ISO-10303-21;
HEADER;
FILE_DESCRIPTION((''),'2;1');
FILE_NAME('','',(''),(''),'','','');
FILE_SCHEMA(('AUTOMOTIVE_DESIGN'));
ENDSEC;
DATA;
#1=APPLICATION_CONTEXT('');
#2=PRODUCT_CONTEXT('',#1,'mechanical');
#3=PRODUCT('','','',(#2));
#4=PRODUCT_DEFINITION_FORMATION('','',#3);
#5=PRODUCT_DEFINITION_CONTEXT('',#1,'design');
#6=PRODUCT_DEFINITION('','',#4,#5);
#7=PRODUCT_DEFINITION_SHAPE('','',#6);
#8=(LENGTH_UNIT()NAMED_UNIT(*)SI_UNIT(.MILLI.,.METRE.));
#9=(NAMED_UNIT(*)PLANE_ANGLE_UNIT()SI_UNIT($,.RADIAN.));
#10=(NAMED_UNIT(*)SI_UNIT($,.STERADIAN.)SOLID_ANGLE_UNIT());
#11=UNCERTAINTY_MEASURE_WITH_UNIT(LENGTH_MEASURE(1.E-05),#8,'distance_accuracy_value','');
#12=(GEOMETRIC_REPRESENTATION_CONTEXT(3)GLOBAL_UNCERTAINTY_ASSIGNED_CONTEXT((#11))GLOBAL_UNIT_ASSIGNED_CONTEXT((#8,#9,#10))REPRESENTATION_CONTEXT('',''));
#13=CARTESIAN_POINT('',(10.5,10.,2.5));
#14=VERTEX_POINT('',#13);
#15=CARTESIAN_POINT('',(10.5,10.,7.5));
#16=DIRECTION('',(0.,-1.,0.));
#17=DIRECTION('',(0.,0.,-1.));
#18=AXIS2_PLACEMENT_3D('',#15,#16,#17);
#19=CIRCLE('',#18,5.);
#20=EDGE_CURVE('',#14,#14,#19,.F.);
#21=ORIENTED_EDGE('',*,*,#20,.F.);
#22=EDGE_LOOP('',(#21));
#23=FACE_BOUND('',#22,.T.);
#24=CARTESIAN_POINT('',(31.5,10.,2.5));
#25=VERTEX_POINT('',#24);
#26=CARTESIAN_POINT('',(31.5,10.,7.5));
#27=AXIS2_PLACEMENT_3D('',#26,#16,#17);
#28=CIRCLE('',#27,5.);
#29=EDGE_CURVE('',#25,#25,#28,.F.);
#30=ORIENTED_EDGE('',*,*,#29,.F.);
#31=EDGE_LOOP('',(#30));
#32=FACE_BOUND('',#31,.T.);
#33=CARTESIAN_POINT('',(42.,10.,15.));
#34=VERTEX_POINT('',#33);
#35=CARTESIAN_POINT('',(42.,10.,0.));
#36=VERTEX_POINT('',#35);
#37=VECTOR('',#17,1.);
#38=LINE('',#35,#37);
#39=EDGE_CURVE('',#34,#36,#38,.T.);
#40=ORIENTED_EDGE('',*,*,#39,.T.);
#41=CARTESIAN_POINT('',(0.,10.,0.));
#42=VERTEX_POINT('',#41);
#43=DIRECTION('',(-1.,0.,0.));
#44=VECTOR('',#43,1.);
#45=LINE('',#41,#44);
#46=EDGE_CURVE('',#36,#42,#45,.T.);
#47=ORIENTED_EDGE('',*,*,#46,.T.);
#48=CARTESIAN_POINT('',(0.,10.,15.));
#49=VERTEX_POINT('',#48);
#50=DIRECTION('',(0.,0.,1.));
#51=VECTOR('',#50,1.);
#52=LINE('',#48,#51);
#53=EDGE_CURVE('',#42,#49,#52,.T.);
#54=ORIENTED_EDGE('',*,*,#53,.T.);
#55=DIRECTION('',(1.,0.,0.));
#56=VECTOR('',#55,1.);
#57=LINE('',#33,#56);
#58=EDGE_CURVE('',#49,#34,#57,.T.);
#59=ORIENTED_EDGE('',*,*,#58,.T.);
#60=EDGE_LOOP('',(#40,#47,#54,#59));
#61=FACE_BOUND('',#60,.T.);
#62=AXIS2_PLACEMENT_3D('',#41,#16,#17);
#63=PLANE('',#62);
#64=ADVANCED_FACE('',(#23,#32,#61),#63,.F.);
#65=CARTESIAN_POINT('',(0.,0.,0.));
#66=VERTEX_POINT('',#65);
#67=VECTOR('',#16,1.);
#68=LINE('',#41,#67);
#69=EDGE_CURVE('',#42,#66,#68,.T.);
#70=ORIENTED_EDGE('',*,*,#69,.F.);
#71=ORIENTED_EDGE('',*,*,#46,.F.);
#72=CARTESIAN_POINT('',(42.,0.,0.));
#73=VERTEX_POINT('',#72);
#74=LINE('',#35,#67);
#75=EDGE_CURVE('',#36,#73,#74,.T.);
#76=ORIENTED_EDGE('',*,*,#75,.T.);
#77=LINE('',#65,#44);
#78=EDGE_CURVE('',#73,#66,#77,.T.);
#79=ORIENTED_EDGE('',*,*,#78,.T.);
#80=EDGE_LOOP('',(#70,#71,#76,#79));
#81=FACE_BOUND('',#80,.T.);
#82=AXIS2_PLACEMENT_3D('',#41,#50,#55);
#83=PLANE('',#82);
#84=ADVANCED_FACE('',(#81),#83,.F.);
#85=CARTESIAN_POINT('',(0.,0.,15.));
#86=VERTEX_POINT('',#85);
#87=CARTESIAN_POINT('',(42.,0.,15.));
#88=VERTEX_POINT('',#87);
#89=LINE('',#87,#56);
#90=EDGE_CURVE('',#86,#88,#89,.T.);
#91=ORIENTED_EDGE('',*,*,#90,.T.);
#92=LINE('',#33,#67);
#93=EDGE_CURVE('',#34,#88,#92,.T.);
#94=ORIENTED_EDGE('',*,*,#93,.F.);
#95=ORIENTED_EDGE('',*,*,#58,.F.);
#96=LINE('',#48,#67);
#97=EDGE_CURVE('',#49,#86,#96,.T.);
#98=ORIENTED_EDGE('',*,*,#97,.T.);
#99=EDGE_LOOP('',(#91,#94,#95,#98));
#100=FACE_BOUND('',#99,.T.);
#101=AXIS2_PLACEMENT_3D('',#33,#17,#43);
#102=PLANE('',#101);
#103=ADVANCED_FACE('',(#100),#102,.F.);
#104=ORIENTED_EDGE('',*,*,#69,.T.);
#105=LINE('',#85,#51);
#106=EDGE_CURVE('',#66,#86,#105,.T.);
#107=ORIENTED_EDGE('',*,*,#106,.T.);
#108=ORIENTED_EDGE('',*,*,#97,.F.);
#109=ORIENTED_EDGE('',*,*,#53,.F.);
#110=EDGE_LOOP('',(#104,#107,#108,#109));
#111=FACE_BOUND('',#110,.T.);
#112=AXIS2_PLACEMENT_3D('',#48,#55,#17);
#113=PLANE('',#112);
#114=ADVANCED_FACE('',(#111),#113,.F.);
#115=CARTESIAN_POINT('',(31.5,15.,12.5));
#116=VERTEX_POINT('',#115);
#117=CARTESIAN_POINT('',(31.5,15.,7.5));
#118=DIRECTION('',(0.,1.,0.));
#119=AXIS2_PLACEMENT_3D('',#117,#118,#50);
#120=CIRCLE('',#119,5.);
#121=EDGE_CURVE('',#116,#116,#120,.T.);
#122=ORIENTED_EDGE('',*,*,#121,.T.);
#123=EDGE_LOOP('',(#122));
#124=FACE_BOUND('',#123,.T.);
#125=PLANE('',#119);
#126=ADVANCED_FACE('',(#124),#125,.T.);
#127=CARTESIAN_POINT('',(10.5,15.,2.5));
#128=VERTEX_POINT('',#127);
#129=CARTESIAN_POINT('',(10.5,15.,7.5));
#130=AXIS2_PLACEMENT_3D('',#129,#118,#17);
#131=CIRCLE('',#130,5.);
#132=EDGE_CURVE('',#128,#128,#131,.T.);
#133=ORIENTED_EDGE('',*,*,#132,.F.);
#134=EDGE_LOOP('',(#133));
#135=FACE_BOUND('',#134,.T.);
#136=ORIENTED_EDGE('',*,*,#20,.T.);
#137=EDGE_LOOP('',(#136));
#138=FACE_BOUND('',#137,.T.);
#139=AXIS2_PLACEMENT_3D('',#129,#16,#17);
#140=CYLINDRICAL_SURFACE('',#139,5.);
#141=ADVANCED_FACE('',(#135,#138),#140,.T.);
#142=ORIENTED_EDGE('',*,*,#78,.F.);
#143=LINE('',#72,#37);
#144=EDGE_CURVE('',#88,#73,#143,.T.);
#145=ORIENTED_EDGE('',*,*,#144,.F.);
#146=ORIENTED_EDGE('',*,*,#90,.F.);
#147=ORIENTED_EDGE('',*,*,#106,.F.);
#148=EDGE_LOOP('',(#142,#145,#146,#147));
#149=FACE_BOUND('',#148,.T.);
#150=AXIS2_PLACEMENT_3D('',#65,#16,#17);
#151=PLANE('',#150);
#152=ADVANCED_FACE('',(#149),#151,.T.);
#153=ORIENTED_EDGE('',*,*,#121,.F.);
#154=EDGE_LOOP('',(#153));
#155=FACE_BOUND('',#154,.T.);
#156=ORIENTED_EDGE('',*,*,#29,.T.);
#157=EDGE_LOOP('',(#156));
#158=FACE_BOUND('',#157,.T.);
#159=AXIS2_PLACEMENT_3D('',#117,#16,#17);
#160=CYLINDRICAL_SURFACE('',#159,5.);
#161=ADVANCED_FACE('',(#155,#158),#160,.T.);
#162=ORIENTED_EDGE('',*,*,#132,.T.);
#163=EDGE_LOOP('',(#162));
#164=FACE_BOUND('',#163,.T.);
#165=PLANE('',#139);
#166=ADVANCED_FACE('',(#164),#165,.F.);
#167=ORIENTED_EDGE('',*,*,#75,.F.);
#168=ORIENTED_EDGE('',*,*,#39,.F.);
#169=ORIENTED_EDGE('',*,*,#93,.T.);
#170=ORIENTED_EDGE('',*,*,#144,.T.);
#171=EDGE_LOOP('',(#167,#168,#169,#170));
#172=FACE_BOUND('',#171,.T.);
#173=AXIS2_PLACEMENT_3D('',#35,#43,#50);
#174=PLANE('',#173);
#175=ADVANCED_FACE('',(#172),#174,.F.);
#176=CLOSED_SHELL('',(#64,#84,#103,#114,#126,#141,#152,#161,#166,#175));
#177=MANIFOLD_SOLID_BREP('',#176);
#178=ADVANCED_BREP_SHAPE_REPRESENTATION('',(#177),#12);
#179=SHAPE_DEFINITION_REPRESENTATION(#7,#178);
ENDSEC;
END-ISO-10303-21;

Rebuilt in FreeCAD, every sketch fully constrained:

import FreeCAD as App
import Part
import Sketcher


def add_polygon(sketch, points):
    """Adds a closed chain of lines whose ends are joined by coincident constraints."""
    first, n = sketch.GeometryCount, len(points)
    for a, b in zip(points, points[1:] + points[:1]):
        sketch.addGeometry(Part.LineSegment(App.Vector(*a, 0), App.Vector(*b, 0)), False)
    for i in range(n):
        sketch.addConstraint(Sketcher.Constraint("Coincident", first + i, 2, first + (i + 1) % n, 1))

doc = App.newDocument("Part")
body = doc.addObject("PartDesign::Body", "Body")

# Sketch on XZ plane
sketch1 = body.newObject("Sketcher::SketchObject", "Sketch")
sketch1.AttachmentSupport = (doc.getObject("XZ_Plane"), [""])
sketch1.MapMode = "FlatFace"
add_polygon(sketch1, [(0, 0), (0, 15), (42, 15), (42, 0)])  # lines 0-3
sketch1.addConstraint([
    Sketcher.Constraint("Vertical", 0),
    Sketcher.Constraint("Horizontal", 1),
    Sketcher.Constraint("Vertical", 2),
    Sketcher.Constraint("Horizontal", 3),
    Sketcher.Constraint("Coincident", 3, 2, -1, 1),
    Sketcher.Constraint("DistanceX", 1, 1, 1, 2, 42.0),
    Sketcher.Constraint("DistanceY", 0, 1, 0, 2, 15.0),
])
pad1 = body.newObject("PartDesign::Pad", "Pad")
pad1.Profile = sketch1
pad1.Length = 10
pad1.Reversed = True

# Sketch on XZ plane
sketch2 = body.newObject("Sketcher::SketchObject", "Sketch001")
sketch2.AttachmentSupport = (doc.getObject("XZ_Plane"), [""])
sketch2.MapMode = "FlatFace"
sketch2.AttachmentOffset = App.Placement(App.Vector(0, 0, -10), App.Rotation())
sketch2.addGeometry([
    Part.Circle(App.Vector(31.5, 7.5, 0), App.Vector(0, 0, 1), 5),
    Part.Circle(App.Vector(10.5, 7.5, 0), App.Vector(0, 0, 1), 5),
], False)
sketch2.addConstraint([
    Sketcher.Constraint("Equal", 0, 1),
    Sketcher.Constraint("Horizontal", 0, 3, 1, 3),
    Sketcher.Constraint("Diameter", 0, 10.0),
    Sketcher.Constraint("DistanceX", 1, 3, 0, 3, 21.0),
    Sketcher.Constraint("DistanceX", -1, 1, 0, 3, 31.5),
    Sketcher.Constraint("DistanceY", -1, 1, 0, 3, 7.5),
])
pad2 = body.newObject("PartDesign::Pad", "Pad001")
pad2.Profile = sketch2
pad2.Length = 5
pad2.Reversed = True

doc.recompute()
